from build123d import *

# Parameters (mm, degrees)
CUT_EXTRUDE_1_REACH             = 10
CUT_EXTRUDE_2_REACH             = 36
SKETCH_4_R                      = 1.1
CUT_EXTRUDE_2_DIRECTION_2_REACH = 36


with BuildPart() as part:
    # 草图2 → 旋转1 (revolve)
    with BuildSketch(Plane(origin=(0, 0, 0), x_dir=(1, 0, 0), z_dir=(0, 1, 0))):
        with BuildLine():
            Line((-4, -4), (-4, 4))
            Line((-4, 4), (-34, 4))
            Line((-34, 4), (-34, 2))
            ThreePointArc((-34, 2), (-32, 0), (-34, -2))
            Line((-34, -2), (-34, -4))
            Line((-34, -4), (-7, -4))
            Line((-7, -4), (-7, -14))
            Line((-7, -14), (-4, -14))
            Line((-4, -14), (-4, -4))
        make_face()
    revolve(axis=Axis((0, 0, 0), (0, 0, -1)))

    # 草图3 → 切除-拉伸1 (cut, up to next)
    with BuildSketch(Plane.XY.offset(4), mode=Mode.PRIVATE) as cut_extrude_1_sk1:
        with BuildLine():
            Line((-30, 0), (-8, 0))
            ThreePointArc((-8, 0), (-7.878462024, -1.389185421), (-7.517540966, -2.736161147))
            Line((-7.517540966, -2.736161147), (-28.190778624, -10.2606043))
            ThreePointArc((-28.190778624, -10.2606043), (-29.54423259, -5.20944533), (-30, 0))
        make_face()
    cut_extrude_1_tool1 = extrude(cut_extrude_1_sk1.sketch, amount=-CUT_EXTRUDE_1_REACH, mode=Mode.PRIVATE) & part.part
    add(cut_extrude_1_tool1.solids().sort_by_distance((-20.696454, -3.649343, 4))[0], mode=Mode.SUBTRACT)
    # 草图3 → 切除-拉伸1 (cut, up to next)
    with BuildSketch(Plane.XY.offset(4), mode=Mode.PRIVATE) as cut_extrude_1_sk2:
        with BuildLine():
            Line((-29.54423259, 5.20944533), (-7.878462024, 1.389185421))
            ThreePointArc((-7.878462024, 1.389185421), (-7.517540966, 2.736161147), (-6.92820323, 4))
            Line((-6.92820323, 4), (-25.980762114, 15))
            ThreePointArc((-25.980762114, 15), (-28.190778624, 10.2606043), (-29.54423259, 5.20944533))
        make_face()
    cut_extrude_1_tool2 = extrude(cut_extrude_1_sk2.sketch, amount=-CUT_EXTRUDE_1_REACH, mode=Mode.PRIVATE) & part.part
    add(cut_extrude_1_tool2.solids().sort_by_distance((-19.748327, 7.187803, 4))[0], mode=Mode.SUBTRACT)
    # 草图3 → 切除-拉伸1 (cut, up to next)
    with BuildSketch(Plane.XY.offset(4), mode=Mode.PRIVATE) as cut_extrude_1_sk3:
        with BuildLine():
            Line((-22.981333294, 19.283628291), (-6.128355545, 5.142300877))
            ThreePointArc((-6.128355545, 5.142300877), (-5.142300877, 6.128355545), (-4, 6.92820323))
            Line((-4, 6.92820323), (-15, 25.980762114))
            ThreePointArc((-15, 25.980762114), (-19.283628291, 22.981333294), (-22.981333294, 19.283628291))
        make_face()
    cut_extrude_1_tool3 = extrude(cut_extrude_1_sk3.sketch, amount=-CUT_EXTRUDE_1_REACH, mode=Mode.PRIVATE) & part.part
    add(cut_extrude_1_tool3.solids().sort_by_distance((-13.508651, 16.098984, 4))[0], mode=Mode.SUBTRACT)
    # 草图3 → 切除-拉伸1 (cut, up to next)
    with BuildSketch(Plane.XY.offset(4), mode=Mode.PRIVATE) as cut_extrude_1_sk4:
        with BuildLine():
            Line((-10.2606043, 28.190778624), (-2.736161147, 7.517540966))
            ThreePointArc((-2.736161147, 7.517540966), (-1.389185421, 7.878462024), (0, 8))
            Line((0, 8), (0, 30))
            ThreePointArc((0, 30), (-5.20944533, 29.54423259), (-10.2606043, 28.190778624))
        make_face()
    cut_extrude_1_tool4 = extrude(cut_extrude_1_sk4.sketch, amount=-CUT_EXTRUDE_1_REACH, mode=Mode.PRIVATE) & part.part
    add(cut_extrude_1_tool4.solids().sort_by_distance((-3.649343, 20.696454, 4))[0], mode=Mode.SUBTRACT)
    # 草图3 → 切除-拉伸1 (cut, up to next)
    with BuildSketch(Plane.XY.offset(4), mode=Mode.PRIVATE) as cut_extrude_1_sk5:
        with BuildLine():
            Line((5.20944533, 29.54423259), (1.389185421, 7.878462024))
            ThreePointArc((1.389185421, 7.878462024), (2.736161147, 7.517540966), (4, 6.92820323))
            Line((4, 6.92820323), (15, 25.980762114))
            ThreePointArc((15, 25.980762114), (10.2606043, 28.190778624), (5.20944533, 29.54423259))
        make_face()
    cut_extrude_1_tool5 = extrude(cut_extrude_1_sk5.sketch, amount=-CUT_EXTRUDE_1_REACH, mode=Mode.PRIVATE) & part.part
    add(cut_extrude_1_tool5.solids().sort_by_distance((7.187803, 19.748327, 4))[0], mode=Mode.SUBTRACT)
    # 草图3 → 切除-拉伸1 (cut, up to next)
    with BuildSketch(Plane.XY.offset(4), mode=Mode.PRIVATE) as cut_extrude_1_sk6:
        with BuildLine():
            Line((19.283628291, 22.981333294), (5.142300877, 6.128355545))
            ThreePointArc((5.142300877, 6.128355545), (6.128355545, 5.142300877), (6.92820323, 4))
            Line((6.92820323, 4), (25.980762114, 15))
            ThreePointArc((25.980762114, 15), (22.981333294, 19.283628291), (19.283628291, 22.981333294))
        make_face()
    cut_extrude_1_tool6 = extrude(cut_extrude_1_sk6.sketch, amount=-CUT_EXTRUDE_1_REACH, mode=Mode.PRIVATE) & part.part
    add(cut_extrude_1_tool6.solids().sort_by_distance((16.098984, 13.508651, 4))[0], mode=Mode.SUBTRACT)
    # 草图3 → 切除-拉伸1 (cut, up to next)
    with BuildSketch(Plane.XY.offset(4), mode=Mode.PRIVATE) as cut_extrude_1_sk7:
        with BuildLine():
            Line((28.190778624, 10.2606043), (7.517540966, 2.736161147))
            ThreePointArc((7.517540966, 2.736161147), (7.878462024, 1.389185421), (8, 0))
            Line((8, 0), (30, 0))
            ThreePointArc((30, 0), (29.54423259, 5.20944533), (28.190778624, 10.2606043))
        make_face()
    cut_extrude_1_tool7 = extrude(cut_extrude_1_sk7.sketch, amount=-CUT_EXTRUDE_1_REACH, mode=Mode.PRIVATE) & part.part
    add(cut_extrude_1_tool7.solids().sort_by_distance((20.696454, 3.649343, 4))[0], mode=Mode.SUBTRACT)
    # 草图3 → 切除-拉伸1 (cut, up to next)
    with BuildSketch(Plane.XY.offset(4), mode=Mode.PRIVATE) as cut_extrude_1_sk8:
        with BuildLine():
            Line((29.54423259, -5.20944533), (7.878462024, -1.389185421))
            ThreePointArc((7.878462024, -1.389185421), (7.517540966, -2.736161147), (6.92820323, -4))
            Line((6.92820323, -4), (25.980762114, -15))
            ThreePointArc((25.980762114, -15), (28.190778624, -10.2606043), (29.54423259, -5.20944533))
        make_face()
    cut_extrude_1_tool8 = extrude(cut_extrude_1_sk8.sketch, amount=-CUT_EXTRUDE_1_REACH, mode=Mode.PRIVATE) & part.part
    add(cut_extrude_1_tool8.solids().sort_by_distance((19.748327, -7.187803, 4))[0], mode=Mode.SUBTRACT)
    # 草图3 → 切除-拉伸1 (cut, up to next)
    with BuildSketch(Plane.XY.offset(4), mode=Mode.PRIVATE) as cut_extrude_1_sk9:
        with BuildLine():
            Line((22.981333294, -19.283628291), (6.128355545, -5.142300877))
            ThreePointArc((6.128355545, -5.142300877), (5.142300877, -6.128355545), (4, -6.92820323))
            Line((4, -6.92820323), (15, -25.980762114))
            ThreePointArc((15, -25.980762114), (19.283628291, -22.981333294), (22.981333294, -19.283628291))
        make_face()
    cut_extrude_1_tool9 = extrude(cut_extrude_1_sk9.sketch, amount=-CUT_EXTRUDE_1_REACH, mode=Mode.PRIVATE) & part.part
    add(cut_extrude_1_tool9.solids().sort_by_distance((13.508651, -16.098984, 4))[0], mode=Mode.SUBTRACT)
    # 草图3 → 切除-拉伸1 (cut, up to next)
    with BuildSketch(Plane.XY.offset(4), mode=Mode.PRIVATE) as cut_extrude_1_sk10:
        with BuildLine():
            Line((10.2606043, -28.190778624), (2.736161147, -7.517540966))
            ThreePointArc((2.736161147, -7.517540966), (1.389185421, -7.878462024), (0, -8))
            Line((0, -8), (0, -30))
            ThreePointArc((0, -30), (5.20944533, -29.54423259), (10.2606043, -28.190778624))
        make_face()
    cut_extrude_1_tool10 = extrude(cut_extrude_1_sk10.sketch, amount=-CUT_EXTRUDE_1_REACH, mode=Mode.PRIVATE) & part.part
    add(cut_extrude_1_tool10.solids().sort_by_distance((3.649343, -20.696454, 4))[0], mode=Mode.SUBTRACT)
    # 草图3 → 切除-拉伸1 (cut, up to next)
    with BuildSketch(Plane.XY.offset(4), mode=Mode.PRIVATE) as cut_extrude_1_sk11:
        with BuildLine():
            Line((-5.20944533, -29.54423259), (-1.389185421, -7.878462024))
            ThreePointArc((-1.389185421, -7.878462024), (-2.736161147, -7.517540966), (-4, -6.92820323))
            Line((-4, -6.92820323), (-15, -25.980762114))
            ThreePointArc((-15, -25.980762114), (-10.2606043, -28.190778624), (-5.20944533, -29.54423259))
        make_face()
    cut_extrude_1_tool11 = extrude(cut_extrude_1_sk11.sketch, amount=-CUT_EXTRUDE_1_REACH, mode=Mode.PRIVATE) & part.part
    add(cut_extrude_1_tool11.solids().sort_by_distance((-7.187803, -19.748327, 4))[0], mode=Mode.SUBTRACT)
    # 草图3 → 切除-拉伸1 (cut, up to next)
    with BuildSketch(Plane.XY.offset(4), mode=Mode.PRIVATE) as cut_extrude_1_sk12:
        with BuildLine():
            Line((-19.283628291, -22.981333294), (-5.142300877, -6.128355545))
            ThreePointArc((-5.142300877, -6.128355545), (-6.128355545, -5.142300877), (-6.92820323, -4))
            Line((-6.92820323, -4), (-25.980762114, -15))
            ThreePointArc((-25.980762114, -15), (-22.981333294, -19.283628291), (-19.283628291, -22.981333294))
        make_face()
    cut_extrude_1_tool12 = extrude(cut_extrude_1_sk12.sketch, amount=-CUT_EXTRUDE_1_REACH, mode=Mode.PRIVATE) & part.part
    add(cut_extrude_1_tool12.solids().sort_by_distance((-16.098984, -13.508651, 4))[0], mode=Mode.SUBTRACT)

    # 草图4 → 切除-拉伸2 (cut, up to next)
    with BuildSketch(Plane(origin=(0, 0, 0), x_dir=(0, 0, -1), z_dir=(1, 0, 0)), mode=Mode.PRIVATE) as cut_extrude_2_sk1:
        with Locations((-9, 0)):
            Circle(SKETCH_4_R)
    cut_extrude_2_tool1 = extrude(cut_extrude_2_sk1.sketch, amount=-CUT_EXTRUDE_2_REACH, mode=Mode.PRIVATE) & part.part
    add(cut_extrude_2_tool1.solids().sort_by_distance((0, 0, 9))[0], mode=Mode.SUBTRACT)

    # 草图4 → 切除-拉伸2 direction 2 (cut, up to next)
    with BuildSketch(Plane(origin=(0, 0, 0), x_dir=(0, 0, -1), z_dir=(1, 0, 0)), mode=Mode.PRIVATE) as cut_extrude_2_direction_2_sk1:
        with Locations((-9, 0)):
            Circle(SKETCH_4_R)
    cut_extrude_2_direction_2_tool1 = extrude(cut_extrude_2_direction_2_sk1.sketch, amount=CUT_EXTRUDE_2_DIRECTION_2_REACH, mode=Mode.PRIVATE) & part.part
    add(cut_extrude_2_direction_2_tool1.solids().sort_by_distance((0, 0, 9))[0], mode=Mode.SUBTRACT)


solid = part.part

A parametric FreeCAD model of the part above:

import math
import FreeCAD as App
import Part
import Sketcher
from FreeCAD import Vector
Q = App.Units.Quantity

doc = App.newDocument("Part")
body = doc.addObject("PartDesign::Body", "Body")

# Sketch on XZ plane
sketch1 = body.newObject("Sketcher::SketchObject", "Sketch")
sketch1.AttachmentSupport = (doc.getObject("XZ_Plane"), [""])
sketch1.MapMode = "FlatFace"
sketch1.addGeometry([
    Part.LineSegment(Vector(-4, -4, 0), Vector(-34, -4, 0)),  # 0
    Part.LineSegment(Vector(-34, -4, 0), Vector(-34, -2, 0)),  # 1
    Part.ArcOfCircle(Part.Circle(Vector(-34, 0, 0), Vector(0, 0, 1), 2), math.radians(-90), math.radians(90)),  # 2
    Part.LineSegment(Vector(-34, 2, 0), Vector(-34, 4, 0)),  # 3
    Part.LineSegment(Vector(-34, 4, 0), Vector(-7, 4, 0)),  # 4
    Part.LineSegment(Vector(-7, 4, 0), Vector(-7, 14, 0)),  # 5
    Part.LineSegment(Vector(-7, 14, 0), Vector(-4, 14, 0)),  # 6
    Part.LineSegment(Vector(-4, 14, 0), Vector(-4, -4, 0)),  # 7
], False)
sketch1.addConstraint([
    Sketcher.Constraint("Coincident", 0, 2, 1, 1),
    Sketcher.Constraint("Coincident", 1, 2, 2, 1),
    Sketcher.Constraint("Coincident", 2, 2, 3, 1),
    Sketcher.Constraint("Coincident", 3, 2, 4, 1),
    Sketcher.Constraint("Coincident", 4, 2, 5, 1),
    Sketcher.Constraint("Coincident", 5, 2, 6, 1),
    Sketcher.Constraint("Coincident", 6, 2, 7, 1),
    Sketcher.Constraint("Coincident", 7, 2, 0, 1),
    Sketcher.Constraint("Horizontal", 0),
    Sketcher.Constraint("Vertical", 1),
    Sketcher.Constraint("Vertical", 3),
    Sketcher.Constraint("Horizontal", 4),
    Sketcher.Constraint("Vertical", 5),
    Sketcher.Constraint("Horizontal", 6),
    Sketcher.Constraint("Vertical", 7),
    Sketcher.Constraint("Symmetric", 1, 2, 2, 2, -1),
    Sketcher.Constraint("Vertical", 2, 3, 0, 2),
    Sketcher.Constraint("Equal", 1, 3),
    Sketcher.Constraint("Radius", 2, 2.0),
    Sketcher.Constraint("DistanceX", 0, 2, 0, 1, 30.0),
    Sketcher.Constraint("DistanceX", 4, 1, 4, 2, 27.0),
    Sketcher.Constraint("DistanceY", 1, 1, 1, 2, 2.0),
    Sketcher.Constraint("DistanceY", 5, 1, 5, 2, 10.0),
    Sketcher.Constraint("DistanceX", 2, 3, -1, 1, 34.0),
])
revolution = body.newObject("PartDesign::Revolution", "Revolution")
revolution.Profile = sketch1
revolution.ReferenceAxis = (sketch1, ["V_Axis"])
revolution.Angle = 360

# Sketch on XY plane
sketch2 = body.newObject("Sketcher::SketchObject", "Sketch001")
sketch2.AttachmentSupport = (doc.getObject("XY_Plane"), [""])
sketch2.MapMode = "FlatFace"
sketch2.AttachmentOffset = App.Placement(Vector(0, 0, 4), App.Rotation())
sketch2.addGeometry([
    Part.LineSegment(Vector(-8, 0, 0), Vector(-30, 0, 0)),
    Part.ArcOfCircle(Part.Circle(Vector(0, 0, 0), Vector(0, 0, 1), 30), math.radians(-180), math.radians(-160)),
    Part.LineSegment(Vector(-28.190779, -10.260604, 0), Vector(-7.517541, -2.736161, 0)),
    Part.ArcOfCircle(Part.Circle(Vector(0, 0, 0), Vector(0, 0, 1), 8), math.radians(-180), math.radians(-160)),
], False)
sketch2.addConstraint([
    Sketcher.Constraint("Coincident", 0, 2, 1, 1),
    Sketcher.Constraint("Coincident", 1, 2, 2, 1),
    Sketcher.Constraint("Coincident", 2, 2, 3, 2),
    Sketcher.Constraint("Coincident", 3, 1, 0, 1),
    Sketcher.Constraint("Horizontal", 0),
    Sketcher.Constraint("Coincident", 1, 3, -1, 1),
    Sketcher.Constraint("Coincident", 3, 3, -1, 1),
    Sketcher.Constraint("PointOnObject", 0, 2, -1),
    Sketcher.Constraint("Radius", 1, 30.0),
    Sketcher.Constraint("Radius", 3, 8.0),
    Sketcher.Constraint("Angle", 2, Q("20 deg")),
    Sketcher.Constraint("DistanceX", 1, 2, -1, 1, 28.190779),
])
pocket1 = body.newObject("PartDesign::Pocket", "Pocket")
pocket1.Profile = sketch2
pocket1.Type = "UpToFirst"

# Sketch on XY plane
sketch3 = body.newObject("Sketcher::SketchObject", "Sketch002")
sketch3.AttachmentSupport = (doc.getObject("XY_Plane"), [""])
sketch3.MapMode = "FlatFace"
sketch3.AttachmentOffset = App.Placement(Vector(0, 0, 4), App.Rotation())
sketch3.addGeometry([
    Part.LineSegment(Vector(-29.544233, 5.209445, 0), Vector(-7.878462, 1.389185, 0)),
    Part.ArcOfCircle(Part.Circle(Vector(0, 0, 0), Vector(0, 0, 1), 8), math.radians(150), math.radians(170)),
    Part.LineSegment(Vector(-6.928203, 4, 0), Vector(-25.980762, 15, 0)),
    Part.ArcOfCircle(Part.Circle(Vector(0, 0, 0), Vector(0, 0, 1), 30), math.radians(150), math.radians(170)),
], False)
sketch3.addConstraint([
    Sketcher.Constraint("Coincident", 0, 2, 1, 2),
    Sketcher.Constraint("Coincident", 1, 1, 2, 1),
    Sketcher.Constraint("Coincident", 2, 2, 3, 1),
    Sketcher.Constraint("Coincident", 3, 2, 0, 1),
    Sketcher.Constraint("Coincident", 1, 3, -1, 1),
    Sketcher.Constraint("Coincident", 3, 3, -1, 1),
    Sketcher.Constraint("Radius", 1, 8.0),
    Sketcher.Constraint("Radius", 3, 30.0),
    Sketcher.Constraint("Angle", 0, Q("-10 deg")),
    Sketcher.Constraint("Angle", 2, Q("150 deg")),
    Sketcher.Constraint("DistanceY", -1, 1, 1, 1, 4.0),
    Sketcher.Constraint("DistanceX", 2, 2, 0, 2, 18.1023),
])
pocket2 = body.newObject("PartDesign::Pocket", "Pocket001")
pocket2.Profile = sketch3
pocket2.Type = "UpToFirst"

# Sketch on XY plane
sketch4 = body.newObject("Sketcher::SketchObject", "Sketch003")
sketch4.AttachmentSupport = (doc.getObject("XY_Plane"), [""])
sketch4.MapMode = "FlatFace"
sketch4.AttachmentOffset = App.Placement(Vector(0, 0, 4), App.Rotation())
sketch4.addGeometry([
    Part.LineSegment(Vector(-22.981333, 19.283628, 0), Vector(-6.128356, 5.142301, 0)),
    Part.ArcOfCircle(Part.Circle(Vector(0, 0, 0), Vector(0, 0, 1), 8), math.radians(120), math.radians(140)),
    Part.LineSegment(Vector(-4, 6.928203, 0), Vector(-15, 25.980762, 0)),
    Part.ArcOfCircle(Part.Circle(Vector(0, 0, 0), Vector(0, 0, 1), 30), math.radians(120), math.radians(140)),
], False)
sketch4.addConstraint([
    Sketcher.Constraint("Coincident", 0, 2, 1, 2),
    Sketcher.Constraint("Coincident", 1, 1, 2, 1),
    Sketcher.Constraint("Coincident", 2, 2, 3, 1),
    Sketcher.Constraint("Coincident", 3, 2, 0, 1),
    Sketcher.Constraint("Coincident", 1, 3, -1, 1),
    Sketcher.Constraint("Coincident", 3, 3, -1, 1),
    Sketcher.Constraint("Radius", 1, 8.0),
    Sketcher.Constraint("Radius", 3, 30.0),
    Sketcher.Constraint("Angle", 0, Q("-40 deg")),
    Sketcher.Constraint("Angle", 2, Q("120 deg")),
    Sketcher.Constraint("DistanceX", 1, 1, -1, 1, 4.0),
    Sketcher.Constraint("DistanceY", -1, 1, 0, 2, 5.142301),
])
pocket3 = body.newObject("PartDesign::Pocket", "Pocket002")
pocket3.Profile = sketch4
pocket3.Type = "UpToFirst"

# Sketch on XY plane
sketch5 = body.newObject("Sketcher::SketchObject", "Sketch004")
sketch5.AttachmentSupport = (doc.getObject("XY_Plane"), [""])
sketch5.MapMode = "FlatFace"
sketch5.AttachmentOffset = App.Placement(Vector(0, 0, 4), App.Rotation())
sketch5.addGeometry([
    Part.LineSegment(Vector(-10.260604, 28.190779, 0), Vector(-2.736161, 7.517541, 0)),
    Part.ArcOfCircle(Part.Circle(Vector(0, 0, 0), Vector(0, 0, 1), 8), math.radians(90), math.radians(110)),
    Part.LineSegment(Vector(0, 8, 0), Vector(0, 30, 0)),
    Part.ArcOfCircle(Part.Circle(Vector(0, 0, 0), Vector(0, 0, 1), 30), math.radians(90), math.radians(110)),
], False)
sketch5.addConstraint([
    Sketcher.Constraint("Coincident", 0, 2, 1, 2),
    Sketcher.Constraint("Coincident", 1, 1, 2, 1),
    Sketcher.Constraint("Coincident", 2, 2, 3, 1),
    Sketcher.Constraint("Coincident", 3, 2, 0, 1),
    Sketcher.Constraint("Vertical", 2),
    Sketcher.Constraint("Coincident", 1, 3, -1, 1),
    Sketcher.Constraint("Coincident", 3, 3, -1, 1),
    Sketcher.Constraint("PointOnObject", 1, 1, -2),
    Sketcher.Constraint("Radius", 1, 8.0),
    Sketcher.Constraint("Radius", 3, 30.0),
    Sketcher.Constraint("Angle", 0, Q("-70 deg")),
    Sketcher.Constraint("DistanceX", 0, 2, -1, 1, 2.736161),
])
pocket4 = body.newObject("PartDesign::Pocket", "Pocket003")
pocket4.Profile = sketch5
pocket4.Type = "UpToFirst"

# Sketch on XY plane
sketch6 = body.newObject("Sketcher::SketchObject", "Sketch005")
sketch6.AttachmentSupport = (doc.getObject("XY_Plane"), [""])
sketch6.MapMode = "FlatFace"
sketch6.AttachmentOffset = App.Placement(Vector(0, 0, 4), App.Rotation())
sketch6.addGeometry([
    Part.LineSegment(Vector(5.209445, 29.544233, 0), Vector(1.389185, 7.878462, 0)),
    Part.ArcOfCircle(Part.Circle(Vector(0, 0, 0), Vector(0, 0, 1), 8), math.radians(60), math.radians(80)),
    Part.LineSegment(Vector(4, 6.928203, 0), Vector(15, 25.980762, 0)),
    Part.ArcOfCircle(Part.Circle(Vector(0, 0, 0), Vector(0, 0, 1), 30), math.radians(60), math.radians(80)),
], False)
sketch6.addConstraint([
    Sketcher.Constraint("Coincident", 0, 2, 1, 2),
    Sketcher.Constraint("Coincident", 1, 1, 2, 1),
    Sketcher.Constraint("Coincident", 2, 2, 3, 1),
    Sketcher.Constraint("Coincident", 3, 2, 0, 1),
    Sketcher.Constraint("Coincident", 1, 3, -1, 1),
    Sketcher.Constraint("Coincident", 3, 3, -1, 1),
    Sketcher.Constraint("Radius", 1, 8.0),
    Sketcher.Constraint("Radius", 3, 30.0),
    Sketcher.Constraint("Angle", 0, Q("-100 deg")),
    Sketcher.Constraint("Angle", 2, Q("60 deg")),
    Sketcher.Constraint("DistanceX", -1, 1, 1, 1, 4.0),
    Sketcher.Constraint("DistanceY", 0, 2, 2, 2, 18.1023),
])
pocket5 = body.newObject("PartDesign::Pocket", "Pocket004")
pocket5.Profile = sketch6
pocket5.Type = "UpToFirst"

# Sketch on XY plane
sketch7 = body.newObject("Sketcher::SketchObject", "Sketch006")
sketch7.AttachmentSupport = (doc.getObject("XY_Plane"), [""])
sketch7.MapMode = "FlatFace"
sketch7.AttachmentOffset = App.Placement(Vector(0, 0, 4), App.Rotation())
sketch7.addGeometry([
    Part.LineSegment(Vector(19.283628, 22.981333, 0), Vector(5.142301, 6.128356, 0)),
    Part.ArcOfCircle(Part.Circle(Vector(0, 0, 0), Vector(0, 0, 1), 8), math.radians(30), math.radians(50)),
    Part.LineSegment(Vector(6.928203, 4, 0), Vector(25.980762, 15, 0)),
    Part.ArcOfCircle(Part.Circle(Vector(0, 0, 0), Vector(0, 0, 1), 30), math.radians(30), math.radians(50)),
], False)
sketch7.addConstraint([
    Sketcher.Constraint("Coincident", 0, 2, 1, 2),
    Sketcher.Constraint("Coincident", 1, 1, 2, 1),
    Sketcher.Constraint("Coincident", 2, 2, 3, 1),
    Sketcher.Constraint("Coincident", 3, 2, 0, 1),
    Sketcher.Constraint("Coincident", 1, 3, -1, 1),
    Sketcher.Constraint("Coincident", 3, 3, -1, 1),
    Sketcher.Constraint("Radius", 1, 8.0),
    Sketcher.Constraint("Radius", 3, 30.0),
    Sketcher.Constraint("Angle", 0, Q("-130 deg")),
    Sketcher.Constraint("Angle", 2, Q("30 deg")),
    Sketcher.Constraint("DistanceY", -1, 1, 1, 1, 4.0),
    Sketcher.Constraint("DistanceX", -1, 1, 0, 2, 5.142301),
])
pocket6 = body.newObject("PartDesign::Pocket", "Pocket005")
pocket6.Profile = sketch7
pocket6.Type = "UpToFirst"

# Sketch on XY plane
sketch8 = body.newObject("Sketcher::SketchObject", "Sketch007")
sketch8.AttachmentSupport = (doc.getObject("XY_Plane"), [""])
sketch8.MapMode = "FlatFace"
sketch8.AttachmentOffset = App.Placement(Vector(0, 0, 4), App.Rotation())
sketch8.addGeometry([
    Part.LineSegment(Vector(28.190779, 10.260604, 0), Vector(7.517541, 2.736161, 0)),
    Part.ArcOfCircle(Part.Circle(Vector(0, 0, 0), Vector(0, 0, 1), 8), math.radians(0), math.radians(20)),
    Part.LineSegment(Vector(8, 0, 0), Vector(30, 0, 0)),
    Part.ArcOfCircle(Part.Circle(Vector(0, 0, 0), Vector(0, 0, 1), 30), math.radians(0), math.radians(20)),
], False)
sketch8.addConstraint([
    Sketcher.Constraint("Coincident", 0, 2, 1, 2),
    Sketcher.Constraint("Coincident", 1, 1, 2, 1),
    Sketcher.Constraint("Coincident", 2, 2, 3, 1),
    Sketcher.Constraint("Coincident", 3, 2, 0, 1),
    Sketcher.Constraint("Horizontal", 2),
    Sketcher.Constraint("Coincident", 1, 3, -1, 1),
    Sketcher.Constraint("Coincident", 3, 3, -1, 1),
    Sketcher.Constraint("PointOnObject", 1, 1, -1),
    Sketcher.Constraint("Radius", 1, 8.0),
    Sketcher.Constraint("Radius", 3, 30.0),
    Sketcher.Constraint("Angle", 0, Q("-160 deg")),
    Sketcher.Constraint("DistanceX", -1, 1, 0, 2, 7.517541),
])
pocket7 = body.newObject("PartDesign::Pocket", "Pocket006")
pocket7.Profile = sketch8
pocket7.Type = "UpToFirst"

# Sketch on XY plane
sketch9 = body.newObject("Sketcher::SketchObject", "Sketch008")
sketch9.AttachmentSupport = (doc.getObject("XY_Plane"), [""])
sketch9.MapMode = "FlatFace"
sketch9.AttachmentOffset = App.Placement(Vector(0, 0, 4), App.Rotation())
sketch9.addGeometry([
    Part.LineSegment(Vector(29.544233, -5.209445, 0), Vector(7.878462, -1.389185, 0)),
    Part.ArcOfCircle(Part.Circle(Vector(0, 0, 0), Vector(0, 0, 1), 8), math.radians(-30), math.radians(-10)),
    Part.LineSegment(Vector(6.928203, -4, 0), Vector(25.980762, -15, 0)),
    Part.ArcOfCircle(Part.Circle(Vector(0, 0, 0), Vector(0, 0, 1), 30), math.radians(-30), math.radians(-10)),
], False)
sketch9.addConstraint([
    Sketcher.Constraint("Coincident", 0, 2, 1, 2),
    Sketcher.Constraint("Coincident", 1, 1, 2, 1),
    Sketcher.Constraint("Coincident", 2, 2, 3, 1),
    Sketcher.Constraint("Coincident", 3, 2, 0, 1),
    Sketcher.Constraint("Coincident", 1, 3, -1, 1),
    Sketcher.Constraint("Coincident", 3, 3, -1, 1),
    Sketcher.Constraint("Radius", 1, 8.0),
    Sketcher.Constraint("Radius", 3, 30.0),
    Sketcher.Constraint("Angle", 0, Q("170 deg")),
    Sketcher.Constraint("Angle", 2, Q("-30 deg")),
    Sketcher.Constraint("DistanceY", 1, 1, -1, 1, 4.0),
    Sketcher.Constraint("DistanceX", 0, 2, 2, 2, 18.1023),
])
pocket8 = body.newObject("PartDesign::Pocket", "Pocket007")
pocket8.Profile = sketch9
pocket8.Type = "UpToFirst"

# Sketch on XY plane
sketch10 = body.newObject("Sketcher::SketchObject", "Sketch009")
sketch10.AttachmentSupport = (doc.getObject("XY_Plane"), [""])
sketch10.MapMode = "FlatFace"
sketch10.AttachmentOffset = App.Placement(Vector(0, 0, 4), App.Rotation())
sketch10.addGeometry([
    Part.LineSegment(Vector(22.981333, -19.283628, 0), Vector(6.128356, -5.142301, 0)),
    Part.ArcOfCircle(Part.Circle(Vector(0, 0, 0), Vector(0, 0, 1), 8), math.radians(-60), math.radians(-40)),
    Part.LineSegment(Vector(4, -6.928203, 0), Vector(15, -25.980762, 0)),
    Part.ArcOfCircle(Part.Circle(Vector(0, 0, 0), Vector(0, 0, 1), 30), math.radians(-60), math.radians(-40)),
], False)
sketch10.addConstraint([
    Sketcher.Constraint("Coincident", 0, 2, 1, 2),
    Sketcher.Constraint("Coincident", 1, 1, 2, 1),
    Sketcher.Constraint("Coincident", 2, 2, 3, 1),
    Sketcher.Constraint("Coincident", 3, 2, 0, 1),
    Sketcher.Constraint("Coincident", 1, 3, -1, 1),
    Sketcher.Constraint("Coincident", 3, 3, -1, 1),
    Sketcher.Constraint("Radius", 1, 8.0),
    Sketcher.Constraint("Radius", 3, 30.0),
    Sketcher.Constraint("Angle", 0, Q("140 deg")),
    Sketcher.Constraint("Angle", 2, Q("-60 deg")),
    Sketcher.Constraint("DistanceX", -1, 1, 1, 1, 4.0),
    Sketcher.Constraint("DistanceY", 0, 2, -1, 1, 5.142301),
])
pocket9 = body.newObject("PartDesign::Pocket", "Pocket008")
pocket9.Profile = sketch10
pocket9.Type = "UpToFirst"

# Sketch on XY plane
sketch11 = body.newObject("Sketcher::SketchObject", "Sketch010")
sketch11.AttachmentSupport = (doc.getObject("XY_Plane"), [""])
sketch11.MapMode = "FlatFace"
sketch11.AttachmentOffset = App.Placement(Vector(0, 0, 4), App.Rotation())
sketch11.addGeometry([
    Part.LineSegment(Vector(10.260604, -28.190779, 0), Vector(2.736161, -7.517541, 0)),
    Part.ArcOfCircle(Part.Circle(Vector(0, 0, 0), Vector(0, 0, 1), 8), math.radians(-90), math.radians(-70)),
    Part.LineSegment(Vector(0, -8, 0), Vector(0, -30, 0)),
    Part.ArcOfCircle(Part.Circle(Vector(0, 0, 0), Vector(0, 0, 1), 30), math.radians(-90), math.radians(-70)),
], False)
sketch11.addConstraint([
    Sketcher.Constraint("Coincident", 0, 2, 1, 2),
    Sketcher.Constraint("Coincident", 1, 1, 2, 1),
    Sketcher.Constraint("Coincident", 2, 2, 3, 1),
    Sketcher.Constraint("Coincident", 3, 2, 0, 1),
    Sketcher.Constraint("Vertical", 2),
    Sketcher.Constraint("Coincident", 1, 3, -1, 1),
    Sketcher.Constraint("Coincident", 3, 3, -1, 1),
    Sketcher.Constraint("PointOnObject", 1, 1, -2),
    Sketcher.Constraint("Radius", 1, 8.0),
    Sketcher.Constraint("Radius", 3, 30.0),
    Sketcher.Constraint("Angle", 0, Q("110 deg")),
    Sketcher.Constraint("DistanceX", -1, 1, 0, 2, 2.736161),
])
pocket10 = body.newObject("PartDesign::Pocket", "Pocket009")
pocket10.Profile = sketch11
pocket10.Type = "UpToFirst"

# Sketch on XY plane
sketch12 = body.newObject("Sketcher::SketchObject", "Sketch011")
sketch12.AttachmentSupport = (doc.getObject("XY_Plane"), [""])
sketch12.MapMode = "FlatFace"
sketch12.AttachmentOffset = App.Placement(Vector(0, 0, 4), App.Rotation())
sketch12.addGeometry([
    Part.LineSegment(Vector(-5.209445, -29.544233, 0), Vector(-1.389185, -7.878462, 0)),
    Part.ArcOfCircle(Part.Circle(Vector(0, 0, 0), Vector(0, 0, 1), 8), math.radians(-120), math.radians(-100)),
    Part.LineSegment(Vector(-4, -6.928203, 0), Vector(-15, -25.980762, 0)),
    Part.ArcOfCircle(Part.Circle(Vector(0, 0, 0), Vector(0, 0, 1), 30), math.radians(-120), math.radians(-100)),
], False)
sketch12.addConstraint([
    Sketcher.Constraint("Coincident", 0, 2, 1, 2),
    Sketcher.Constraint("Coincident", 1, 1, 2, 1),
    Sketcher.Constraint("Coincident", 2, 2, 3, 1),
    Sketcher.Constraint("Coincident", 3, 2, 0, 1),
    Sketcher.Constraint("Coincident", 1, 3, -1, 1),
    Sketcher.Constraint("Coincident", 3, 3, -1, 1),
    Sketcher.Constraint("Radius", 1, 8.0),
    Sketcher.Constraint("Radius", 3, 30.0),
    Sketcher.Constraint("Angle", 0, Q("80 deg")),
    Sketcher.Constraint("Angle", 2, Q("-120 deg")),
    Sketcher.Constraint("DistanceX", 1, 1, -1, 1, 4.0),
    Sketcher.Constraint("DistanceY", 2, 2, 0, 2, 18.1023),
])
pocket11 = body.newObject("PartDesign::Pocket", "Pocket010")
pocket11.Profile = sketch12
pocket11.Type = "UpToFirst"

# Sketch on XY plane
sketch13 = body.newObject("Sketcher::SketchObject", "Sketch012")
sketch13.AttachmentSupport = (doc.getObject("XY_Plane"), [""])
sketch13.MapMode = "FlatFace"
sketch13.AttachmentOffset = App.Placement(Vector(0, 0, 4), App.Rotation())
sketch13.addGeometry([
    Part.LineSegment(Vector(-19.283628, -22.981333, 0), Vector(-5.142301, -6.128356, 0)),
    Part.ArcOfCircle(Part.Circle(Vector(0, 0, 0), Vector(0, 0, 1), 8), math.radians(-150), math.radians(-130)),
    Part.LineSegment(Vector(-6.928203, -4, 0), Vector(-25.980762, -15, 0)),
    Part.ArcOfCircle(Part.Circle(Vector(0, 0, 0), Vector(0, 0, 1), 30), math.radians(-150), math.radians(-130)),
], False)
sketch13.addConstraint([
    Sketcher.Constraint("Coincident", 0, 2, 1, 2),
    Sketcher.Constraint("Coincident", 1, 1, 2, 1),
    Sketcher.Constraint("Coincident", 2, 2, 3, 1),
    Sketcher.Constraint("Coincident", 3, 2, 0, 1),
    Sketcher.Constraint("Coincident", 1, 3, -1, 1),
    Sketcher.Constraint("Coincident", 3, 3, -1, 1),
    Sketcher.Constraint("Radius", 1, 8.0),
    Sketcher.Constraint("Radius", 3, 30.0),
    Sketcher.Constraint("Angle", 0, Q("50 deg")),
    Sketcher.Constraint("Angle", 2, Q("-150 deg")),
    Sketcher.Constraint("DistanceY", 1, 1, -1, 1, 4.0),
    Sketcher.Constraint("DistanceX", 0, 2, -1, 1, 5.142301),
])
pocket12 = body.newObject("PartDesign::Pocket", "Pocket011")
pocket12.Profile = sketch13
pocket12.Type = "UpToFirst"

# Sketch on YZ plane
sketch14 = body.newObject("Sketcher::SketchObject", "Sketch013")
sketch14.AttachmentSupport = (doc.getObject("YZ_Plane"), [""])
sketch14.MapMode = "FlatFace"
sketch14.addGeometry(Part.Circle(Vector(0, 9, 0), Vector(0, 0, 1), 1.1), False)
sketch14.addConstraint([
    Sketcher.Constraint("PointOnObject", 0, 3, -2),
    Sketcher.Constraint("Diameter", 0, 2.2),
    Sketcher.Constraint("DistanceY", -1, 1, 0, 3, 9.0),
])
pocket13 = body.newObject("PartDesign::Pocket", "Pocket012")
pocket13.Profile = sketch14
pocket13.Length = 7

# Sketch on YZ plane
sketch15 = body.newObject("Sketcher::SketchObject", "Sketch014")
sketch15.AttachmentSupport = (doc.getObject("YZ_Plane"), [""])
sketch15.MapMode = "FlatFace"
sketch15.addGeometry(Part.Circle(Vector(0, 9, 0), Vector(0, 0, 1), 1.1), False)
sketch15.addConstraint([
    Sketcher.Constraint("PointOnObject", 0, 3, -2),
    Sketcher.Constraint("Diameter", 0, 2.2),
    Sketcher.Constraint("DistanceY", -1, 1, 0, 3, 9.0),
])
pocket14 = body.newObject("PartDesign::Pocket", "Pocket013")
pocket14.Profile = sketch15
pocket14.Length = 7
pocket14.Reversed = True

doc.recompute()
